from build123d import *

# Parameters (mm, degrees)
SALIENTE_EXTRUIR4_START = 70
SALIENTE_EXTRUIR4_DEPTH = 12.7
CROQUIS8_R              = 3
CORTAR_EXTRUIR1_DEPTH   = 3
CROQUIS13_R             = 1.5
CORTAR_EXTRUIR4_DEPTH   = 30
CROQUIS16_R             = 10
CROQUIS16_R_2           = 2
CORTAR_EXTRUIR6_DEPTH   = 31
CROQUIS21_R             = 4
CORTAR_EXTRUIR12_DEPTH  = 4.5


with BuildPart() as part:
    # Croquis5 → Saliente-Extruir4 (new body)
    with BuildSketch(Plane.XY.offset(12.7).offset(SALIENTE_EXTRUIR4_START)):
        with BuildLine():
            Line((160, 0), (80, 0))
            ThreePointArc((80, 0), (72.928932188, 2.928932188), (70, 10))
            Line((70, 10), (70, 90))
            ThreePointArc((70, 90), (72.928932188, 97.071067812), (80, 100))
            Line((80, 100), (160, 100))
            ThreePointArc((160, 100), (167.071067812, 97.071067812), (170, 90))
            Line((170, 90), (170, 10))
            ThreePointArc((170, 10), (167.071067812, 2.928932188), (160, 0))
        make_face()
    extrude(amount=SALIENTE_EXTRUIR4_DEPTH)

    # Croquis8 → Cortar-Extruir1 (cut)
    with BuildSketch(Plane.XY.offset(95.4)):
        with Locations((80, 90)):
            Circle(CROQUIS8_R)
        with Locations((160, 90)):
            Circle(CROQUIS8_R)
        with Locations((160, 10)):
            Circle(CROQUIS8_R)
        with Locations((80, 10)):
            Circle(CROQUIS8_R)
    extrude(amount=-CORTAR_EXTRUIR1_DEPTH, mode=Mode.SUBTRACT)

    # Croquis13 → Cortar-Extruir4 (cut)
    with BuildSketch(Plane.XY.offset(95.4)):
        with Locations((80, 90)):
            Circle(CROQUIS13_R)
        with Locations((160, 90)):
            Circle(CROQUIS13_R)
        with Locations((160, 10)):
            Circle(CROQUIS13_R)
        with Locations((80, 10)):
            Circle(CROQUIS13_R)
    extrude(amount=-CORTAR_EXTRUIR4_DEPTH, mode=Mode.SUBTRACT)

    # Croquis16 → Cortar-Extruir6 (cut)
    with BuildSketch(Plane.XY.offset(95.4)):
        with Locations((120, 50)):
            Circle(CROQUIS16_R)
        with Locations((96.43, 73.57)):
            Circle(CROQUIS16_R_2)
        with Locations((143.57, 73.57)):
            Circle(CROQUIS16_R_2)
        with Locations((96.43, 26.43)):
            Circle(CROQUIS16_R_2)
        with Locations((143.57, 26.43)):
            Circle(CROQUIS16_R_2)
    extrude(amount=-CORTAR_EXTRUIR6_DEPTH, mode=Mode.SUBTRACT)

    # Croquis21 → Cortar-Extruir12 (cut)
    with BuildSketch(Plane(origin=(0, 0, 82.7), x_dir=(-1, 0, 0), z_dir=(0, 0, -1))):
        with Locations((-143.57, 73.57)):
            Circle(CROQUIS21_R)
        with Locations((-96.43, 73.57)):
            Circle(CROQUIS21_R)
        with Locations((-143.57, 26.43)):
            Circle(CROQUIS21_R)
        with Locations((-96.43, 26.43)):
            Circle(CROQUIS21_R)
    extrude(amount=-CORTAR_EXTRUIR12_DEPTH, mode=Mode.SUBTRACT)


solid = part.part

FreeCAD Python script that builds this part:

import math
import FreeCAD as App
import Part
import Sketcher

V = App.Vector

doc = App.newDocument("Part")
body = doc.addObject("PartDesign::Body", "Body")

# Sketch on XY plane
sketch1 = body.newObject("Sketcher::SketchObject", "Sketch")
sketch1.AttachmentSupport = (doc.getObject("XY_Plane"), [""])
sketch1.MapMode = "FlatFace"
sketch1.AttachmentOffset = App.Placement(V(0, 0, 82.7), App.Rotation())
sketch1.addGeometry(Part.LineSegment(V(80, 0, 0), V(160, 0, 0)), False)
sketch1.addGeometry(Part.ArcOfCircle(Part.Circle(V(160, 10, 0), V(0, 0, 1), 10), math.radians(-90), math.radians(0)), False)
sketch1.addGeometry(Part.LineSegment(V(170, 10, 0), V(170, 90, 0)), False)
sketch1.addGeometry(Part.ArcOfCircle(Part.Circle(V(160, 90, 0), V(0, 0, 1), 10), math.radians(0), math.radians(90)), False)
sketch1.addGeometry(Part.LineSegment(V(160, 100, 0), V(80, 100, 0)), False)
sketch1.addGeometry(Part.ArcOfCircle(Part.Circle(V(80, 90, 0), V(0, 0, 1), 10), math.radians(90), math.radians(180)), False)
sketch1.addGeometry(Part.LineSegment(V(70, 90, 0), V(70, 10, 0)), False)
sketch1.addGeometry(Part.ArcOfCircle(Part.Circle(V(80, 10, 0), V(0, 0, 1), 10), math.radians(180), math.radians(270)), False)
sketch1.addConstraint(Sketcher.Constraint("Tangent", 0, 2, 1, 1))
sketch1.addConstraint(Sketcher.Constraint("Tangent", 1, 2, 2, 1))
sketch1.addConstraint(Sketcher.Constraint("Tangent", 2, 2, 3, 1))
sketch1.addConstraint(Sketcher.Constraint("Tangent", 3, 2, 4, 1))
sketch1.addConstraint(Sketcher.Constraint("Tangent", 4, 2, 5, 1))
sketch1.addConstraint(Sketcher.Constraint("Tangent", 5, 2, 6, 1))
sketch1.addConstraint(Sketcher.Constraint("Tangent", 6, 2, 7, 1))
sketch1.addConstraint(Sketcher.Constraint("Tangent", 7, 2, 0, 1))
sketch1.addConstraint(Sketcher.Constraint("Horizontal", 0))
sketch1.addConstraint(Sketcher.Constraint("Vertical", 2))
sketch1.addConstraint(Sketcher.Constraint("Horizontal", 4))
sketch1.addConstraint(Sketcher.Constraint("Vertical", 6))
sketch1.addConstraint(Sketcher.Constraint("Equal", 1, 3))
sketch1.addConstraint(Sketcher.Constraint("Equal", 3, 5))
sketch1.addConstraint(Sketcher.Constraint("Equal", 5, 7))
sketch1.addConstraint(Sketcher.Constraint("PointOnObject", 0, 2, -1))
sketch1.addConstraint(Sketcher.Constraint("Equal", 4, 2))
sketch1.addConstraint(Sketcher.Constraint("Radius", 1, 10.0))
sketch1.addConstraint(Sketcher.Constraint("DistanceX", 0, 1, 0, 2, 80.0))
sketch1.addConstraint(Sketcher.Constraint("DistanceX", -1, 1, 1, 3, 160.0))
pad1 = body.newObject("PartDesign::Pad", "Pad")
pad1.Profile = sketch1
pad1.Length = 12.7

# Sketch on XY plane
sketch2 = body.newObject("Sketcher::SketchObject", "Sketch001")
sketch2.AttachmentSupport = (doc.getObject("XY_Plane"), [""])
sketch2.MapMode = "FlatFace"
sketch2.AttachmentOffset = App.Placement(V(0, 0, 95.4), App.Rotation())
sketch2.addGeometry(Part.Circle(V(80, 90, 0), V(0, 0, 1), 3), False)
sketch2.addGeometry(Part.Circle(V(160, 90, 0), V(0, 0, 1), 3), False)
sketch2.addGeometry(Part.Circle(V(160, 10, 0), V(0, 0, 1), 3), False)
sketch2.addGeometry(Part.Circle(V(80, 10, 0), V(0, 0, 1), 3), False)
sketch2.addConstraint(Sketcher.Constraint("Equal", 0, 1))
sketch2.addConstraint(Sketcher.Constraint("Equal", 1, 2))
sketch2.addConstraint(Sketcher.Constraint("Equal", 2, 3))
sketch2.addConstraint(Sketcher.Constraint("Horizontal", 0, 3, 1, 3))
sketch2.addConstraint(Sketcher.Constraint("Horizontal", 2, 3, 3, 3))
sketch2.addConstraint(Sketcher.Constraint("Vertical", 1, 3, 2, 3))
sketch2.addConstraint(Sketcher.Constraint("Vertical", 0, 3, 3, 3))
sketch2.addConstraint(Sketcher.Constraint("Diameter", 0, 6.0))
sketch2.addConstraint(Sketcher.Constraint("DistanceX", -1, 1, 0, 3, 80.0))
sketch2.addConstraint(Sketcher.Constraint("DistanceY", -1, 1, 0, 3, 90.0))
sketch2.addConstraint(Sketcher.Constraint("DistanceX", -1, 1, 1, 3, 160.0))
sketch2.addConstraint(Sketcher.Constraint("DistanceY", -1, 1, 2, 3, 10.0))
pocket1 = body.newObject("PartDesign::Pocket", "Pocket")
pocket1.Profile = sketch2
pocket1.Length = 3

# Sketch on XY plane
sketch3 = body.newObject("Sketcher::SketchObject", "Sketch002")
sketch3.AttachmentSupport = (doc.getObject("XY_Plane"), [""])
sketch3.MapMode = "FlatFace"
sketch3.AttachmentOffset = App.Placement(V(0, 0, 95.4), App.Rotation())
sketch3.addGeometry(Part.Circle(V(80, 90, 0), V(0, 0, 1), 1.5), False)
sketch3.addGeometry(Part.Circle(V(160, 90, 0), V(0, 0, 1), 1.5), False)
sketch3.addGeometry(Part.Circle(V(160, 10, 0), V(0, 0, 1), 1.5), False)
sketch3.addGeometry(Part.Circle(V(80, 10, 0), V(0, 0, 1), 1.5), False)
sketch3.addConstraint(Sketcher.Constraint("Equal", 0, 1))
sketch3.addConstraint(Sketcher.Constraint("Equal", 1, 2))
sketch3.addConstraint(Sketcher.Constraint("Equal", 2, 3))
sketch3.addConstraint(Sketcher.Constraint("Horizontal", 0, 3, 1, 3))
sketch3.addConstraint(Sketcher.Constraint("Horizontal", 2, 3, 3, 3))
sketch3.addConstraint(Sketcher.Constraint("Vertical", 1, 3, 2, 3))
sketch3.addConstraint(Sketcher.Constraint("Vertical", 0, 3, 3, 3))
sketch3.addConstraint(Sketcher.Constraint("Diameter", 0, 3.0))
sketch3.addConstraint(Sketcher.Constraint("DistanceX", -1, 1, 0, 3, 80.0))
sketch3.addConstraint(Sketcher.Constraint("DistanceY", -1, 1, 0, 3, 90.0))
sketch3.addConstraint(Sketcher.Constraint("DistanceX", -1, 1, 1, 3, 160.0))
sketch3.addConstraint(Sketcher.Constraint("DistanceY", -1, 1, 2, 3, 10.0))
pocket2 = body.newObject("PartDesign::Pocket", "Pocket001")
pocket2.Profile = sketch3
pocket2.Length = 30

# Sketch on XY plane
sketch4 = body.newObject("Sketcher::SketchObject", "Sketch003")
sketch4.AttachmentSupport = (doc.getObject("XY_Plane"), [""])
sketch4.MapMode = "FlatFace"
sketch4.AttachmentOffset = App.Placement(V(0, 0, 95.4), App.Rotation())
sketch4.addGeometry(Part.Circle(V(120, 50, 0), V(0, 0, 1), 10), False)
sketch4.addGeometry(Part.Circle(V(96.43, 73.57, 0), V(0, 0, 1), 2), False)
sketch4.addGeometry(Part.Circle(V(143.57, 73.57, 0), V(0, 0, 1), 2), False)
sketch4.addGeometry(Part.Circle(V(96.43, 26.43, 0), V(0, 0, 1), 2), False)
sketch4.addGeometry(Part.Circle(V(143.57, 26.43, 0), V(0, 0, 1), 2), False)
sketch4.addConstraint(Sketcher.Constraint("Equal", 1, 2))
sketch4.addConstraint(Sketcher.Constraint("Equal", 2, 3))
sketch4.addConstraint(Sketcher.Constraint("Equal", 3, 4))
sketch4.addConstraint(Sketcher.Constraint("Horizontal", 1, 3, 2, 3))
sketch4.addConstraint(Sketcher.Constraint("Horizontal", 3, 3, 4, 3))
sketch4.addConstraint(Sketcher.Constraint("Vertical", 1, 3, 3, 3))
sketch4.addConstraint(Sketcher.Constraint("Vertical", 2, 3, 4, 3))
sketch4.addConstraint(Sketcher.Constraint("Diameter", 0, 20.0))
sketch4.addConstraint(Sketcher.Constraint("Diameter", 1, 4.0))
sketch4.addConstraint(Sketcher.Constraint("DistanceX", -1, 1, 0, 3, 120.0))
sketch4.addConstraint(Sketcher.Constraint("DistanceY", -1, 1, 0, 3, 50.0))
sketch4.addConstraint(Sketcher.Constraint("DistanceX", -1, 1, 1, 3, 96.43))
sketch4.addConstraint(Sketcher.Constraint("DistanceY", -1, 1, 1, 3, 73.57))
sketch4.addConstraint(Sketcher.Constraint("DistanceX", -1, 1, 2, 3, 143.57))
sketch4.addConstraint(Sketcher.Constraint("DistanceY", -1, 1, 3, 3, 26.43))
pocket3 = body.newObject("PartDesign::Pocket", "Pocket002")
pocket3.Profile = sketch4
pocket3.Length = 31

# Sketch on XY plane
sketch5 = body.newObject("Sketcher::SketchObject", "Sketch004")
sketch5.AttachmentSupport = (doc.getObject("XY_Plane"), [""])
sketch5.MapMode = "FlatFace"
sketch5.AttachmentOffset = App.Placement(V(0, 0, 82.7), App.Rotation())
sketch5.addGeometry(Part.Circle(V(143.57, 73.57, 0), V(0, 0, 1), 4), False)
sketch5.addGeometry(Part.Circle(V(96.43, 73.57, 0), V(0, 0, 1), 4), False)
sketch5.addGeometry(Part.Circle(V(143.57, 26.43, 0), V(0, 0, 1), 4), False)
sketch5.addGeometry(Part.Circle(V(96.43, 26.43, 0), V(0, 0, 1), 4), False)
sketch5.addConstraint(Sketcher.Constraint("Equal", 0, 1))
sketch5.addConstraint(Sketcher.Constraint("Equal", 1, 2))
sketch5.addConstraint(Sketcher.Constraint("Equal", 2, 3))
sketch5.addConstraint(Sketcher.Constraint("Horizontal", 0, 3, 1, 3))
sketch5.addConstraint(Sketcher.Constraint("Horizontal", 2, 3, 3, 3))
sketch5.addConstraint(Sketcher.Constraint("Vertical", 0, 3, 2, 3))
sketch5.addConstraint(Sketcher.Constraint("Vertical", 1, 3, 3, 3))
sketch5.addConstraint(Sketcher.Constraint("Diameter", 0, 8.0))
sketch5.addConstraint(Sketcher.Constraint("DistanceX", -1, 1, 0, 3, 143.57))
sketch5.addConstraint(Sketcher.Constraint("DistanceY", -1, 1, 0, 3, 73.57))
sketch5.addConstraint(Sketcher.Constraint("DistanceX", -1, 1, 1, 3, 96.43))
sketch5.addConstraint(Sketcher.Constraint("DistanceY", -1, 1, 2, 3, 26.43))
pocket4 = body.newObject("PartDesign::Pocket", "Pocket003")
pocket4.Profile = sketch5
pocket4.Length = 4.5
pocket4.Reversed = True

doc.recompute()
